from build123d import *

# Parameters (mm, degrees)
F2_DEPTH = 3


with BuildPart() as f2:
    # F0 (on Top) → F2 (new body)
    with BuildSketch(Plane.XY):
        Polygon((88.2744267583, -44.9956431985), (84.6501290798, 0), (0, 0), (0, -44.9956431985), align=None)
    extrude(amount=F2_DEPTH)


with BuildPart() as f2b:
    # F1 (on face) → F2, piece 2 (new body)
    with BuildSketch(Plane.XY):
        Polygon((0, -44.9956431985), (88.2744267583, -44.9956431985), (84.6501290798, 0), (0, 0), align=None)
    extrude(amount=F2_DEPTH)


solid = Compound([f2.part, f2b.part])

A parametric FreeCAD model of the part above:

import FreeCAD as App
import Part
import Sketcher
Q = App.Units.Quantity


def add_polygon(sketch, points):
    """Adds a closed chain of lines whose ends are joined by coincident constraints."""
    first, n = sketch.GeometryCount, len(points)
    for a, b in zip(points, points[1:] + points[:1]):
        sketch.addGeometry(Part.LineSegment(App.Vector(*a, 0), App.Vector(*b, 0)), False)
    for i in range(n):
        sketch.addConstraint(Sketcher.Constraint("Coincident", first + i, 2, first + (i + 1) % n, 1))

doc = App.newDocument("Part")
body = doc.addObject("PartDesign::Body", "Body")

sketch1 = body.newObject("Sketcher::SketchObject", "Sketch")
sketch1.AttachmentSupport = (doc.getObject("XY_Plane"), [""])
sketch1.MapMode = "FlatFace"
add_polygon(sketch1, [(88, -45), (85, 0), (0, 0), (0, -45)])
sketch1.addConstraint([
    Sketcher.Constraint("Horizontal", 1),
    Sketcher.Constraint("Vertical", 2),
    Sketcher.Constraint("Horizontal", 3),
    Sketcher.Constraint("Coincident", 1, 2, -1, 1),
    Sketcher.Constraint("DistanceX", 1, 2, 1, 1, Q("84.650129 mm")),
    Sketcher.Constraint("Distance", 0, Q("45.141372 mm")),
    Sketcher.Constraint("DistanceX", 3, 1, 3, 2, Q("88.274427 mm")),
])
pad1 = body.newObject("PartDesign::Pad", "Pad")
pad1.Profile = sketch1
pad1.Length = 3
body2 = doc.addObject("PartDesign::Body", "Body001")

sketch2 = body2.newObject("Sketcher::SketchObject", "Sketch001")
sketch2.AttachmentSupport = (doc.getObject("XY_Plane001"), [""])
sketch2.MapMode = "FlatFace"
add_polygon(sketch2, [(0, -45), (88, -45), (85, 0), (0, 0)])
sketch2.addConstraint([
    Sketcher.Constraint("Horizontal", 0),
    Sketcher.Constraint("Horizontal", 2),
    Sketcher.Constraint("Vertical", 3),
    Sketcher.Constraint("Coincident", 2, 2, -1, 1),
    Sketcher.Constraint("DistanceX", 2, 2, 2, 1, Q("84.650129 mm")),
    Sketcher.Constraint("Distance", 1, Q("45.141372 mm")),
    Sketcher.Constraint("DistanceX", 0, 1, 0, 2, Q("88.274427 mm")),
])
pad2 = body2.newObject("PartDesign::Pad", "Pad001")
pad2.Profile = sketch2
pad2.Length = 3

doc.recompute()
